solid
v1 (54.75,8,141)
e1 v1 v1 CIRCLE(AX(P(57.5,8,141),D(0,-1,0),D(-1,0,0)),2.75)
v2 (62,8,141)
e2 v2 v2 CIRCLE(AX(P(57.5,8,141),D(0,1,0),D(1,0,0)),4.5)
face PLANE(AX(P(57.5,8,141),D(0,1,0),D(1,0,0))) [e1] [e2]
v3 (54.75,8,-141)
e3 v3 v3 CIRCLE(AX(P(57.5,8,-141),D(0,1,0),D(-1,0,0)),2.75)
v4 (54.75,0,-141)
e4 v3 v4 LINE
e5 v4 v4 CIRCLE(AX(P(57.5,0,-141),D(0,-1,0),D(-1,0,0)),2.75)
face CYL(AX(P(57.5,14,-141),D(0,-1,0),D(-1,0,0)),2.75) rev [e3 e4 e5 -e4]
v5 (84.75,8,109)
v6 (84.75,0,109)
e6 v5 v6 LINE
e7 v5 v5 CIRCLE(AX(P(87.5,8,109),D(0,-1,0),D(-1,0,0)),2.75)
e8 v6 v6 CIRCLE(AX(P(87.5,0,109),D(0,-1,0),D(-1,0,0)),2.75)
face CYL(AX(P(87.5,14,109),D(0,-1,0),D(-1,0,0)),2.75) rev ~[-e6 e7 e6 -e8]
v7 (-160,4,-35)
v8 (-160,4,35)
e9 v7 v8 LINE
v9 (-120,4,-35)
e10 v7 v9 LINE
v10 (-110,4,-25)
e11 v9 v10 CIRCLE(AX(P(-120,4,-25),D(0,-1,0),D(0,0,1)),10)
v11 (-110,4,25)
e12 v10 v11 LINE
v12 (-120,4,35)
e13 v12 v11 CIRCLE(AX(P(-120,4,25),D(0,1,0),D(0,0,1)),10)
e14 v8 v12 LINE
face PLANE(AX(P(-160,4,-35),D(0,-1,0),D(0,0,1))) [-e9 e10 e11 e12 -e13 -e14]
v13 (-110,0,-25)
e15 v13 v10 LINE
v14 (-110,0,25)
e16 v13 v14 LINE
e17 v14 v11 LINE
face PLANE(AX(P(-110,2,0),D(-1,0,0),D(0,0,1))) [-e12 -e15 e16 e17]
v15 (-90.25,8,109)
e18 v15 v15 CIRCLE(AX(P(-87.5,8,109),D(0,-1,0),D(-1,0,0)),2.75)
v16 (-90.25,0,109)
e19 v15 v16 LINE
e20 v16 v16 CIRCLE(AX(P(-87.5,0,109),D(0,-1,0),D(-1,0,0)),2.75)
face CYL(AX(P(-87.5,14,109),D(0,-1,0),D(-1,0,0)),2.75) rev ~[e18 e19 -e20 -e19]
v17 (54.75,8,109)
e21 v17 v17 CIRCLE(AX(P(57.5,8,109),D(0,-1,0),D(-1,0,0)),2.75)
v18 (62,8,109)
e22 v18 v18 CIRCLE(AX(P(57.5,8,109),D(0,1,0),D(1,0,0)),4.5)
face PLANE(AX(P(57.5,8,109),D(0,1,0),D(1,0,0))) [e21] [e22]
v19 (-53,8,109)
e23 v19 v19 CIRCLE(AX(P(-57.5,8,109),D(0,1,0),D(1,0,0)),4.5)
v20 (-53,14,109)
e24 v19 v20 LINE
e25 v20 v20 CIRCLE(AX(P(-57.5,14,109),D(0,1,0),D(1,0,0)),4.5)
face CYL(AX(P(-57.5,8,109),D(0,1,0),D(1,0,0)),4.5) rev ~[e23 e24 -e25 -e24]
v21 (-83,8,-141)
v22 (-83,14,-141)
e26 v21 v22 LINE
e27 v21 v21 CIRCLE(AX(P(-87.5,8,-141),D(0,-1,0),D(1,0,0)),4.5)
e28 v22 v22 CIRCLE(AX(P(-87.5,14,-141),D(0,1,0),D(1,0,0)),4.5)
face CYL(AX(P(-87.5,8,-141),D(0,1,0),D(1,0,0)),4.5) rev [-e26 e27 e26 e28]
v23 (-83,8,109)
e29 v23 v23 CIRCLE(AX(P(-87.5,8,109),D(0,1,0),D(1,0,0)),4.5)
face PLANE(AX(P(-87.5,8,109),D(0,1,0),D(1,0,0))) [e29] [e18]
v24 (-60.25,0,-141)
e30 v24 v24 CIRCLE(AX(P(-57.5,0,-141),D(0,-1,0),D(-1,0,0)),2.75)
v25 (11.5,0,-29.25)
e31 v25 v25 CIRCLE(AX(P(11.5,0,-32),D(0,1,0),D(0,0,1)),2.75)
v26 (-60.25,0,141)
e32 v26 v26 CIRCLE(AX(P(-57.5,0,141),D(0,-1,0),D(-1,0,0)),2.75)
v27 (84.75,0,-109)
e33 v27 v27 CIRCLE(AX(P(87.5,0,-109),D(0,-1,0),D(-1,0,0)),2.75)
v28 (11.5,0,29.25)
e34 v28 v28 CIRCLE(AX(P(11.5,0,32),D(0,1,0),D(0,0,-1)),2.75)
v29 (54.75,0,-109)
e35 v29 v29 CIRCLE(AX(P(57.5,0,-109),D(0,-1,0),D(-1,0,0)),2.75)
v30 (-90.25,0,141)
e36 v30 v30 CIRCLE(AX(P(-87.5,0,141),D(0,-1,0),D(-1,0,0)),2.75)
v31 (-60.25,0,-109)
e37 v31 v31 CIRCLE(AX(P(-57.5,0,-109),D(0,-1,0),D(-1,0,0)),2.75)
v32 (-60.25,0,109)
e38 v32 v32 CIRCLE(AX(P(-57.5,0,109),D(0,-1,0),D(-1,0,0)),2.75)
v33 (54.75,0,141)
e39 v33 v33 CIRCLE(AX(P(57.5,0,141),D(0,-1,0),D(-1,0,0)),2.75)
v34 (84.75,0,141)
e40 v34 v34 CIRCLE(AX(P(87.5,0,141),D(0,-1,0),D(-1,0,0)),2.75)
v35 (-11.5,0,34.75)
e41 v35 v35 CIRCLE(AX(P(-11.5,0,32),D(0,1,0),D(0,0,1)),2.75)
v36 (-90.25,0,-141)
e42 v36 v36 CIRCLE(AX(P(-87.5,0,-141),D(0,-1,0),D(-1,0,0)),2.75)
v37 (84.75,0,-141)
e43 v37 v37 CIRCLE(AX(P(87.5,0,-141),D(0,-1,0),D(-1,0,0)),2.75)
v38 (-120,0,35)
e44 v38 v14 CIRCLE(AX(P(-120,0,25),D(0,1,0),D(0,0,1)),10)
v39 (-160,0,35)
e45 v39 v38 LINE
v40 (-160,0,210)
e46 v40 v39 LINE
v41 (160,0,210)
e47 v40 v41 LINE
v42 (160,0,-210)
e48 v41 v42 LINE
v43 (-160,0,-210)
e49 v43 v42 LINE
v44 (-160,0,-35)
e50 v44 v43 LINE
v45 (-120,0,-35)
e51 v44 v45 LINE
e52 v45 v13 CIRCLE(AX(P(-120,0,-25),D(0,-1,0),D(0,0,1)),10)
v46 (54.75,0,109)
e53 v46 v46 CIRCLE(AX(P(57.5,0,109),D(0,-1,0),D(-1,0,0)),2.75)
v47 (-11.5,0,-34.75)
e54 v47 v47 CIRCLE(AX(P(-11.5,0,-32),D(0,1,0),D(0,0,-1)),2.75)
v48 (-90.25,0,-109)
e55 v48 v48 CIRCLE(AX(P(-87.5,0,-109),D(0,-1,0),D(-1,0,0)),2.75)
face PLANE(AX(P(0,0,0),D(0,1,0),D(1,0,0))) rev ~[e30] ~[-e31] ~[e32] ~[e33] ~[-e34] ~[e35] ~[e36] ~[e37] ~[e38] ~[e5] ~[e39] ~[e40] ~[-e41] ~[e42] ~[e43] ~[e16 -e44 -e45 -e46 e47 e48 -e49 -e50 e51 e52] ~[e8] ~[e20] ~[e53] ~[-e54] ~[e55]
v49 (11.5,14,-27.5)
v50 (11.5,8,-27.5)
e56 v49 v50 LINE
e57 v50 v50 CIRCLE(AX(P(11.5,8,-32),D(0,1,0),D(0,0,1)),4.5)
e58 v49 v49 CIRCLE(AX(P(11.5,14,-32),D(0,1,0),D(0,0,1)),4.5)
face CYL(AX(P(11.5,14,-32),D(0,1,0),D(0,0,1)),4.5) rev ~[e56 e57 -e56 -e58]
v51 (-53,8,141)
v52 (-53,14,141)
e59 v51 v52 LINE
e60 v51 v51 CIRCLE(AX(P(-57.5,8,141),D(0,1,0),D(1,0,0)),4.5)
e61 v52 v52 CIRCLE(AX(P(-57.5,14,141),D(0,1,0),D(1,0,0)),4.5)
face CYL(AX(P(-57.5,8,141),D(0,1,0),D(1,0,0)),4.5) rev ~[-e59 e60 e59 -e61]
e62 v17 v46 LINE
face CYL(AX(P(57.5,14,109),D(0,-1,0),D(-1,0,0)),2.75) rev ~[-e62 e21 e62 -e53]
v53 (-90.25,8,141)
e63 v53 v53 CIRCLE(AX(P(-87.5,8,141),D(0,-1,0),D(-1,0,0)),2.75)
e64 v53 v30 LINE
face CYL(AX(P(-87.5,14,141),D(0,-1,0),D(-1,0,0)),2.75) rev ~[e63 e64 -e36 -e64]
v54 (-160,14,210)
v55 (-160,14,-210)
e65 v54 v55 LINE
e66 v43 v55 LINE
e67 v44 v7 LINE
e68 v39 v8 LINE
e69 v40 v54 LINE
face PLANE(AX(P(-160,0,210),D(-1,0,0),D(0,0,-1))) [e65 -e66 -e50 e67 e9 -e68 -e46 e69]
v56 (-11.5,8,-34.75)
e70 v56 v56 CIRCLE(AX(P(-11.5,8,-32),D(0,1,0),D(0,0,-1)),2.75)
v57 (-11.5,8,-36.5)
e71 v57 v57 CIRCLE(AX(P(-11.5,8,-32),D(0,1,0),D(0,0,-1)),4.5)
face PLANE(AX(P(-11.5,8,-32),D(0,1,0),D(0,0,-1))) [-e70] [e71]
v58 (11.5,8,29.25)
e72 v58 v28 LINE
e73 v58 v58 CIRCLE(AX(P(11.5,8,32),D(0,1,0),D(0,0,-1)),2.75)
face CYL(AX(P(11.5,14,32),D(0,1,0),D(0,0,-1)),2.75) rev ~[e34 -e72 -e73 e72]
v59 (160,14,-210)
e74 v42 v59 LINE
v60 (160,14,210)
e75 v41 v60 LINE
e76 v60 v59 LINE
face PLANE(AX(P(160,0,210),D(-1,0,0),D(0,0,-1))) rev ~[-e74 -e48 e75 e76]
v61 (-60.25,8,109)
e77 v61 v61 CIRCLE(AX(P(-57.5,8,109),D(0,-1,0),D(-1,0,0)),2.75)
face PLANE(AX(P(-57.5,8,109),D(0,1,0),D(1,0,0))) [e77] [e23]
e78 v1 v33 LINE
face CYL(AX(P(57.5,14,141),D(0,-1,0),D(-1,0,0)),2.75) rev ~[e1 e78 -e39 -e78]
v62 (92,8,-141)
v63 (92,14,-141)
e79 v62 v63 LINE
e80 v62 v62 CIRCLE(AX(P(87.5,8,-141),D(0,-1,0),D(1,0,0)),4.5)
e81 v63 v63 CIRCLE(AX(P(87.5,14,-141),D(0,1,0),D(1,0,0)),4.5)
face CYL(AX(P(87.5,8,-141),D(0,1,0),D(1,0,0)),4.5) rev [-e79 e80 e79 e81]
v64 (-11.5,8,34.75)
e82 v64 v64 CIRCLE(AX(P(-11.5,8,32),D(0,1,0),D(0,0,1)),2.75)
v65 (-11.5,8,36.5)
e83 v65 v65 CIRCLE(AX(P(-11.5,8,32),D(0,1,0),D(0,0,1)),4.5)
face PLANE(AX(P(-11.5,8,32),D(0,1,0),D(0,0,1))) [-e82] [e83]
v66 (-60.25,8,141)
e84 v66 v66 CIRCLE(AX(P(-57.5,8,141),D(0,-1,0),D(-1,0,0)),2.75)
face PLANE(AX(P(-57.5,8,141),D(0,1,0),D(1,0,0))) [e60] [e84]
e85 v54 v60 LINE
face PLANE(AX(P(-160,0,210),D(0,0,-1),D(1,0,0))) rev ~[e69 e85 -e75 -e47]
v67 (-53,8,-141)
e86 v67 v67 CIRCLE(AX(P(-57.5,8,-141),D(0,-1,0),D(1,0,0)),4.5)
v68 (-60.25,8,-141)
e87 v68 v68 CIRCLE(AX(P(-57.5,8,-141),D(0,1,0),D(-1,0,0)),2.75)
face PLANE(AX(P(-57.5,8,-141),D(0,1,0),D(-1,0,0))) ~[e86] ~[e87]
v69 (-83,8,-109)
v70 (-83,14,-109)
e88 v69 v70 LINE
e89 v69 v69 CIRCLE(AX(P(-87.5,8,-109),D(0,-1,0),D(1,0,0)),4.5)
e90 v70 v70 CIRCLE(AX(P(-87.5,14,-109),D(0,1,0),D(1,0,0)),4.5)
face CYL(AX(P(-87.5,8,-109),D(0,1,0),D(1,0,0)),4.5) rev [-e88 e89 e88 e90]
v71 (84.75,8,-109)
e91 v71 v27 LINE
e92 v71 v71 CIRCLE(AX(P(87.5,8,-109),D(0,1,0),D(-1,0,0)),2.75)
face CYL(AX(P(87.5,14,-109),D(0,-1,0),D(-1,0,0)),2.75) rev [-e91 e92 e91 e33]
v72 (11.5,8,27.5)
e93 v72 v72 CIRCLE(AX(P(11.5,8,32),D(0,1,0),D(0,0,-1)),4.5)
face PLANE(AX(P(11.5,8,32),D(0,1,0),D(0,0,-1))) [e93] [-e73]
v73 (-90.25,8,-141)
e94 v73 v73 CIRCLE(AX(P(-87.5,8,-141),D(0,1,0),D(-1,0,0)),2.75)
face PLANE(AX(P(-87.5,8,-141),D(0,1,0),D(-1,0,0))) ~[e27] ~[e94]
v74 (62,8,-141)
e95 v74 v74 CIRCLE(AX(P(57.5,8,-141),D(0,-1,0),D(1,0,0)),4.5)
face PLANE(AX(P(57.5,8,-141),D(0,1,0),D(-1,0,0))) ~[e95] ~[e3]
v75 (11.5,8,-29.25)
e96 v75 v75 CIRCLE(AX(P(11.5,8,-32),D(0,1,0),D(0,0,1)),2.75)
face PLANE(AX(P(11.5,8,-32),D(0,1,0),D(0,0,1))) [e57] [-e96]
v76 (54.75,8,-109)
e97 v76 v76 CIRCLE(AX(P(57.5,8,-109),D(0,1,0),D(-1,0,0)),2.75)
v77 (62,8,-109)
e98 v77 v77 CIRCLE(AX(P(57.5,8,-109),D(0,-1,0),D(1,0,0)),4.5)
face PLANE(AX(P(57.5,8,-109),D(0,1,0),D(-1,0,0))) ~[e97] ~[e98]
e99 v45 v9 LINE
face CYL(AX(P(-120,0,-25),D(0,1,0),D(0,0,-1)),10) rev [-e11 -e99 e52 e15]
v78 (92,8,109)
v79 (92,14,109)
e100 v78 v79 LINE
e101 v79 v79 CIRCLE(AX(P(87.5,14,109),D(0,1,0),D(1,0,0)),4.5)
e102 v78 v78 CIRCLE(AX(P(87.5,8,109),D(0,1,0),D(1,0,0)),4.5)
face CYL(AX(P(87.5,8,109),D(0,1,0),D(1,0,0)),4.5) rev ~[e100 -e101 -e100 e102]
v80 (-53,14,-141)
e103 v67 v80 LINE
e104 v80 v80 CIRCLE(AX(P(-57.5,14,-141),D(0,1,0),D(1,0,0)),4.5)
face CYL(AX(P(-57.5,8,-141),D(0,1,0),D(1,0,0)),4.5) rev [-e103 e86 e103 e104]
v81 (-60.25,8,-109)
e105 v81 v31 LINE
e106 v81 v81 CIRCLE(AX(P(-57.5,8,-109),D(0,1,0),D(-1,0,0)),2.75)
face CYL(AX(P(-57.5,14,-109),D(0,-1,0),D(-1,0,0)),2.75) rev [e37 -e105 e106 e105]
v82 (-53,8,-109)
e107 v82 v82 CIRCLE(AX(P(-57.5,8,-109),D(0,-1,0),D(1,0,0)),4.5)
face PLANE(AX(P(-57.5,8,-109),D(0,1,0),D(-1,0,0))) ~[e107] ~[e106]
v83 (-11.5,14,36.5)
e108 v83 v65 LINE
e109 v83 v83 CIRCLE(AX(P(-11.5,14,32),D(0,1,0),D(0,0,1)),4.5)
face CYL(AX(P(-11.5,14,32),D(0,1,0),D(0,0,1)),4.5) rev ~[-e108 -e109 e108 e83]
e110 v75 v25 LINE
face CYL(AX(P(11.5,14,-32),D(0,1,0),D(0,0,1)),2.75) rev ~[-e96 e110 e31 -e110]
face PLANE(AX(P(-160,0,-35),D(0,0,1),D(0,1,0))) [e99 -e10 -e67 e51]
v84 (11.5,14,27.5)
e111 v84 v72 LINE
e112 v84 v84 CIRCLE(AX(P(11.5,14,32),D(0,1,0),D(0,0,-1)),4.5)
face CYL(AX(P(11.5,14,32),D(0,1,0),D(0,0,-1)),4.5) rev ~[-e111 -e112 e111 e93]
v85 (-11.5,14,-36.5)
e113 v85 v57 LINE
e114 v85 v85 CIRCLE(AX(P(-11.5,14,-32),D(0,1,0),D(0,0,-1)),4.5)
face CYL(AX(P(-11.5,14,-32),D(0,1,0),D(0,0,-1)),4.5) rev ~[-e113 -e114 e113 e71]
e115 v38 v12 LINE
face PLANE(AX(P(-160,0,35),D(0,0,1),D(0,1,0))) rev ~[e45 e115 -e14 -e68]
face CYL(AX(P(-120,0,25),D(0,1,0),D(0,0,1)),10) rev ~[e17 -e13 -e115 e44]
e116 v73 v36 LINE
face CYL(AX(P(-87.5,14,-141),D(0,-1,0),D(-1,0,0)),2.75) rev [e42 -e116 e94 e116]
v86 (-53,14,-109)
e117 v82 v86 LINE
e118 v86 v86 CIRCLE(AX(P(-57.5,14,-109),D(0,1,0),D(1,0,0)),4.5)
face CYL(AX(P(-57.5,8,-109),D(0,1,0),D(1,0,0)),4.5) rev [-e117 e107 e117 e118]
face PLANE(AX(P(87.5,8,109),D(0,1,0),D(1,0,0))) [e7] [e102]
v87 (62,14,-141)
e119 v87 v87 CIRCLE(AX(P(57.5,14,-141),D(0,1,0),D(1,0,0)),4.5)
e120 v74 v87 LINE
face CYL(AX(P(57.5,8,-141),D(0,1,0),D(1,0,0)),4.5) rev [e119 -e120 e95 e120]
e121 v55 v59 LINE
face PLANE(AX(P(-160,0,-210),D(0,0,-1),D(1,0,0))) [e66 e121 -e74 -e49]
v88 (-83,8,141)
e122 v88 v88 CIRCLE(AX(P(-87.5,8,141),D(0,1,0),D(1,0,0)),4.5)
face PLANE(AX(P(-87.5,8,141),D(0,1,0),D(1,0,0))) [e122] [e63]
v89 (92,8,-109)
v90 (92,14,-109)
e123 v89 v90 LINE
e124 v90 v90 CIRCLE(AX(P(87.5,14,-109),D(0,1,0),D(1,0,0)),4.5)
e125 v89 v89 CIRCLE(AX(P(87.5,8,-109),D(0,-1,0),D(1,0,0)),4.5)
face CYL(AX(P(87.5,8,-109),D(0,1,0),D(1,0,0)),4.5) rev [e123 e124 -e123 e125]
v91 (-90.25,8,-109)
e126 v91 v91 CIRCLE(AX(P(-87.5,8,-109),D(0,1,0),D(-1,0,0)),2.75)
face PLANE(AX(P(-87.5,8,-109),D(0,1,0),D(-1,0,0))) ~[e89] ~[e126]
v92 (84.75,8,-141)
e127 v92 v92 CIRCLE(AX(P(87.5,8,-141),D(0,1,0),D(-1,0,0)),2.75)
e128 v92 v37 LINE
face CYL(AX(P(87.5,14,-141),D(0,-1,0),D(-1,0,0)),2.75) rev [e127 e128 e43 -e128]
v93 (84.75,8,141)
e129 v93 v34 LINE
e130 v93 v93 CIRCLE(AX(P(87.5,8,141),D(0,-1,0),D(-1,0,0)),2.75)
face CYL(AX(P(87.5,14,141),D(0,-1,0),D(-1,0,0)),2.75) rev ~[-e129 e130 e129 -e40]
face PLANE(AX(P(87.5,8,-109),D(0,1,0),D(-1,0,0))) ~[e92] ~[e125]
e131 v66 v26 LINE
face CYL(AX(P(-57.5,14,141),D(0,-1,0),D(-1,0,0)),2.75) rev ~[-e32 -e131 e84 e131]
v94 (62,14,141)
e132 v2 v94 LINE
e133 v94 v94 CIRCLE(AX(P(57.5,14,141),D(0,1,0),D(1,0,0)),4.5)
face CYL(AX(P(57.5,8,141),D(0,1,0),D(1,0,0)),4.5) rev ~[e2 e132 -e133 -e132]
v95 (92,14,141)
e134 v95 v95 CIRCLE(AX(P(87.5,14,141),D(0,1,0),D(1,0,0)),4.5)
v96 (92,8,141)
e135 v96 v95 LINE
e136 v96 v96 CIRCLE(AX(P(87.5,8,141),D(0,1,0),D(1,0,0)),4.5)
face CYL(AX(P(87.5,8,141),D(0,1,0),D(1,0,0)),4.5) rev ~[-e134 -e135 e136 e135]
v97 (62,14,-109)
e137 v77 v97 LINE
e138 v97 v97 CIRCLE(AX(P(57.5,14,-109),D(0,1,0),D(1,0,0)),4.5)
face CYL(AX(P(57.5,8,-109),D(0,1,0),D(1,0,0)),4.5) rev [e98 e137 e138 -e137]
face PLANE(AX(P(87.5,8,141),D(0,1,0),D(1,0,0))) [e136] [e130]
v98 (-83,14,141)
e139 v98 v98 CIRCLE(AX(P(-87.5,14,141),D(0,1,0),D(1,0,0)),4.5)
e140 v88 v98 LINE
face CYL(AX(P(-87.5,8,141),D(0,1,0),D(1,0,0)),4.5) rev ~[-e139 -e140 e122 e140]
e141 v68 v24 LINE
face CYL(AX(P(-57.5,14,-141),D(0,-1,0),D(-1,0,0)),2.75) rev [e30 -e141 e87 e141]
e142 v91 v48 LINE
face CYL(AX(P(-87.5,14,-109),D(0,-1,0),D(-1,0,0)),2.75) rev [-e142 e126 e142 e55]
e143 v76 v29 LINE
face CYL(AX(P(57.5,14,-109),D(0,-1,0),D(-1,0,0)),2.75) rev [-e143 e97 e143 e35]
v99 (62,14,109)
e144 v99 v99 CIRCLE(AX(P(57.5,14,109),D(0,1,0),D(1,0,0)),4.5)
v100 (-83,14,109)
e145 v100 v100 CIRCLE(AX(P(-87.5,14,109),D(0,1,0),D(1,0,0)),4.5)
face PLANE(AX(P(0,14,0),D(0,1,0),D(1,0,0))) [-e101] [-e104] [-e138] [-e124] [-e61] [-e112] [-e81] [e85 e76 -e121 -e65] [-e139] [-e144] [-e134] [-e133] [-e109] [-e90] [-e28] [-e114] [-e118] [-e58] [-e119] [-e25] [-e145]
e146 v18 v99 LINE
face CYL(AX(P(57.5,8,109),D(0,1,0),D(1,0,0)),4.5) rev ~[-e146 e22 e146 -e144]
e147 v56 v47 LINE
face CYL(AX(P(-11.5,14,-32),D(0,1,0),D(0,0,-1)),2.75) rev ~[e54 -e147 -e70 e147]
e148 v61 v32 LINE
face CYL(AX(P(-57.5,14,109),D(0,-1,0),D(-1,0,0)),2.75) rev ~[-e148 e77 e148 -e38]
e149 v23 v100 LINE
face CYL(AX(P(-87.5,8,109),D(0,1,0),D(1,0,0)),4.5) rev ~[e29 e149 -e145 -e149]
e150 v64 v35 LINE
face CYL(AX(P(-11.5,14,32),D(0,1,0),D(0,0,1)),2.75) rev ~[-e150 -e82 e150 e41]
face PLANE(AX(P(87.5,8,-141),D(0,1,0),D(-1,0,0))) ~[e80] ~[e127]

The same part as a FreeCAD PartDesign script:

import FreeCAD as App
import Part
import Sketcher
from FreeCAD import Vector


def edges_at(feature, points):
    """Names of the edges that pass closest to the given points."""
    edges = feature.Shape.Edges
    near = lambda p: min(range(len(edges)), key=lambda i: edges[i].distToShape(Part.Vertex(*p))[0])
    return sorted({f"Edge{near(p) + 1}" for p in points})


def add_polygon(sketch, points):
    """Adds a closed chain of lines whose ends are joined by coincident constraints."""
    first, n = sketch.GeometryCount, len(points)
    for a, b in zip(points, points[1:] + points[:1]):
        sketch.addGeometry(Part.LineSegment(App.Vector(*a, 0), App.Vector(*b, 0)), False)
    for i in range(n):
        sketch.addConstraint(Sketcher.Constraint("Coincident", first + i, 2, first + (i + 1) % n, 1))

doc = App.newDocument("Part")
body = doc.addObject("PartDesign::Body", "Body")

# Sketch on XZ plane
sketch1 = body.newObject("Sketcher::SketchObject", "Sketch")
sketch1.AttachmentSupport = (doc.getObject("XZ_Plane"), [""])
sketch1.MapMode = "FlatFace"
add_polygon(sketch1, [(-160, -210), (-160, 210), (160, 210), (160, -210)])  # lines 0-3
sketch1.addConstraint([
    Sketcher.Constraint("Vertical", 0),
    Sketcher.Constraint("Horizontal", 1),
    Sketcher.Constraint("Vertical", 2),
    Sketcher.Constraint("Horizontal", 3),
    Sketcher.Constraint("Symmetric", 0, 2, 2, 2, -1, 1),
    Sketcher.Constraint("DistanceX", 1, 1, 1, 2, 320.0),
    Sketcher.Constraint("DistanceY", 0, 1, 0, 2, 420.0),
])
pad1 = body.newObject("PartDesign::Pad", "Pad")
pad1.Profile = sketch1
pad1.Length = 14
pad1.Reversed = True

# Sketch on XZ plane
sketch2 = body.newObject("Sketcher::SketchObject", "Sketch001")
sketch2.AttachmentSupport = (doc.getObject("XZ_Plane"), [""])
sketch2.MapMode = "FlatFace"
sketch2.AttachmentOffset = App.Placement(Vector(0, 0, -14), App.Rotation())
sketch2.addGeometry([
    Part.Circle(Vector(-87.5, 141, 0), Vector(0, 0, 1), 2.8),  # 0
    Part.Circle(Vector(-87.5, 109, 0), Vector(0, 0, 1), 2.8),  # 1
    Part.Circle(Vector(-57.5, 141, 0), Vector(0, 0, 1), 2.8),  # 2
    Part.Circle(Vector(-57.5, 109, 0), Vector(0, 0, 1), 2.8),  # 3
    Part.Circle(Vector(57.5, 141, 0), Vector(0, 0, 1), 2.8),  # 4
    Part.Circle(Vector(57.5, 109, 0), Vector(0, 0, 1), 2.8),  # 5
    Part.Circle(Vector(87.5, 109, 0), Vector(0, 0, 1), 2.8),  # 6
    Part.Circle(Vector(87.5, 141, 0), Vector(0, 0, 1), 2.8),  # 7
], False)
sketch2.addConstraint([
    Sketcher.Constraint("Equal", 0, 1),
    Sketcher.Constraint("Equal", 1, 2),
    Sketcher.Constraint("Equal", 2, 3),
    Sketcher.Constraint("Equal", 3, 4),
    Sketcher.Constraint("Equal", 4, 5),
    Sketcher.Constraint("Equal", 5, 6),
    Sketcher.Constraint("Equal", 6, 7),
    Sketcher.Constraint("Symmetric", 2, 3, 4, 3, -2),
    Sketcher.Constraint("Symmetric", 3, 3, 5, 3, -2),
    Sketcher.Constraint("Symmetric", 1, 3, 6, 3, -2),
    Sketcher.Constraint("Symmetric", 0, 3, 7, 3, -2),
    Sketcher.Constraint("Horizontal", 0, 3, 2, 3),
    Sketcher.Constraint("Horizontal", 1, 3, 3, 3),
    Sketcher.Constraint("Vertical", 0, 3, 1, 3),
    Sketcher.Constraint("Vertical", 2, 3, 3, 3),
    Sketcher.Constraint("Diameter", 0, 5.5),
    Sketcher.Constraint("DistanceY", -1, 1, 0, 3, 141.0),
    Sketcher.Constraint("DistanceY", -1, 1, 1, 3, 109.0),
    Sketcher.Constraint("DistanceX", 0, 3, 2, 3, 30.0),
    Sketcher.Constraint("DistanceX", 2, 3, 4, 3, 115.0),
])
doc.recompute()
hole = body.newObject("PartDesign::Hole", "Hole")
hole.Profile = sketch2
hole.ThreadType = "None"
hole.Diameter = 5.5
hole.DepthType = "ThroughAll"
hole.HoleCutType = "Counterbore"
hole.HoleCutDiameter = 9
hole.HoleCutDepth = 6
hole.Reversed = True
doc.recompute()

mirrored = body.newObject("PartDesign::Mirrored", "Mirrored")
mirrored.Originals = [hole]
mirrored.MirrorPlane = (doc.getObject("XY_Plane"), [""])
body.Tip = mirrored

# Sketch on YZ plane
sketch3 = body.newObject("Sketcher::SketchObject", "Sketch002")
sketch3.AttachmentSupport = (doc.getObject("YZ_Plane"), [""])
sketch3.MapMode = "FlatFace"
sketch3.AttachmentOffset = App.Placement(Vector(0, 0, -160), App.Rotation())
add_polygon(sketch3, [(4, -35), (0, -35), (0, 35), (4, 35)])  # lines 0-3
sketch3.addConstraint([
    Sketcher.Constraint("Horizontal", 0),
    Sketcher.Constraint("Vertical", 1),
    Sketcher.Constraint("Horizontal", 2),
    Sketcher.Constraint("Vertical", 3),
    Sketcher.Constraint("Symmetric", 0, 2, 1, 2, -1, 1),
    Sketcher.Constraint("DistanceX", 0, 2, 0, 1, 4.0),
    Sketcher.Constraint("DistanceY", 1, 1, 1, 2, 70.0),
])
pocket1 = body.newObject("PartDesign::Pocket", "Pocket")
pocket1.Profile = sketch3
pocket1.Length = 50
pocket1.Reversed = True
doc.recompute()

fillet = body.newObject("PartDesign::Fillet", "Fillet")
fillet.Base = (pocket1, edges_at(pocket1, [(-110, 2, -35), (-110, 2, 35)]))
fillet.Radius = 10

# Sketch on XZ plane
sketch4 = body.newObject("Sketcher::SketchObject", "Sketch003")
sketch4.AttachmentSupport = (doc.getObject("XZ_Plane"), [""])
sketch4.MapMode = "FlatFace"
sketch4.AttachmentOffset = App.Placement(Vector(0, 0, -14), App.Rotation())
sketch4.addGeometry([
    Part.Circle(Vector(11.5, -32, 0), Vector(0, 0, 1), 4.5),
    Part.Circle(Vector(-11.5, -32, 0), Vector(0, 0, 1), 4.5),
    Part.Circle(Vector(-11.5, 32, 0), Vector(0, 0, 1), 4.5),
    Part.Circle(Vector(11.5, 32, 0), Vector(0, 0, 1), 4.5),
], False)
sketch4.addConstraint([
    Sketcher.Constraint("Equal", 0, 1),
    Sketcher.Constraint("Equal", 1, 2),
    Sketcher.Constraint("Equal", 2, 3),
    Sketcher.Constraint("Symmetric", 0, 3, 2, 3, -1, 1),
    Sketcher.Constraint("Symmetric", 1, 3, 3, 3, -1, 1),
    Sketcher.Constraint("Symmetric", 0, 3, 1, 3, -2),
    Sketcher.Constraint("Diameter", 0, 9.0),
    Sketcher.Constraint("DistanceY", 0, 3, -1, 1, 32.0),
    Sketcher.Constraint("DistanceX", 1, 3, 0, 3, 23.0),
])
pocket2 = body.newObject("PartDesign::Pocket", "Pocket001")
pocket2.Profile = sketch4
pocket2.Length = 6
pocket2.Reversed = True

# Sketch on XZ plane
sketch5 = body.newObject("Sketcher::SketchObject", "Sketch004")
sketch5.AttachmentSupport = (doc.getObject("XZ_Plane"), [""])
sketch5.MapMode = "FlatFace"
sketch5.AttachmentOffset = App.Placement(Vector(0, 0, -14), App.Rotation())
sketch5.addGeometry([
    Part.Circle(Vector(11.5, -32, 0), Vector(0, 0, 1), 2.8),
    Part.Circle(Vector(-11.5, -32, 0), Vector(0, 0, 1), 2.8),
    Part.Circle(Vector(-11.5, 32, 0), Vector(0, 0, 1), 2.8),
    Part.Circle(Vector(11.5, 32, 0), Vector(0, 0, 1), 2.8),
], False)
sketch5.addConstraint([
    Sketcher.Constraint("Equal", 0, 1),
    Sketcher.Constraint("Equal", 1, 2),
    Sketcher.Constraint("Equal", 2, 3),
    Sketcher.Constraint("Symmetric", 0, 3, 2, 3, -1, 1),
    Sketcher.Constraint("Symmetric", 1, 3, 3, 3, -1, 1),
    Sketcher.Constraint("Symmetric", 0, 3, 1, 3, -2),
    Sketcher.Constraint("Diameter", 0, 5.5),
    Sketcher.Constraint("DistanceY", 0, 3, -1, 1, 32.0),
    Sketcher.Constraint("DistanceX", 1, 3, 0, 3, 23.0),
])
pocket3 = body.newObject("PartDesign::Pocket", "Pocket002")
pocket3.Profile = sketch5
pocket3.Type = "ThroughAll"
pocket3.Reversed = True

doc.recompute()
